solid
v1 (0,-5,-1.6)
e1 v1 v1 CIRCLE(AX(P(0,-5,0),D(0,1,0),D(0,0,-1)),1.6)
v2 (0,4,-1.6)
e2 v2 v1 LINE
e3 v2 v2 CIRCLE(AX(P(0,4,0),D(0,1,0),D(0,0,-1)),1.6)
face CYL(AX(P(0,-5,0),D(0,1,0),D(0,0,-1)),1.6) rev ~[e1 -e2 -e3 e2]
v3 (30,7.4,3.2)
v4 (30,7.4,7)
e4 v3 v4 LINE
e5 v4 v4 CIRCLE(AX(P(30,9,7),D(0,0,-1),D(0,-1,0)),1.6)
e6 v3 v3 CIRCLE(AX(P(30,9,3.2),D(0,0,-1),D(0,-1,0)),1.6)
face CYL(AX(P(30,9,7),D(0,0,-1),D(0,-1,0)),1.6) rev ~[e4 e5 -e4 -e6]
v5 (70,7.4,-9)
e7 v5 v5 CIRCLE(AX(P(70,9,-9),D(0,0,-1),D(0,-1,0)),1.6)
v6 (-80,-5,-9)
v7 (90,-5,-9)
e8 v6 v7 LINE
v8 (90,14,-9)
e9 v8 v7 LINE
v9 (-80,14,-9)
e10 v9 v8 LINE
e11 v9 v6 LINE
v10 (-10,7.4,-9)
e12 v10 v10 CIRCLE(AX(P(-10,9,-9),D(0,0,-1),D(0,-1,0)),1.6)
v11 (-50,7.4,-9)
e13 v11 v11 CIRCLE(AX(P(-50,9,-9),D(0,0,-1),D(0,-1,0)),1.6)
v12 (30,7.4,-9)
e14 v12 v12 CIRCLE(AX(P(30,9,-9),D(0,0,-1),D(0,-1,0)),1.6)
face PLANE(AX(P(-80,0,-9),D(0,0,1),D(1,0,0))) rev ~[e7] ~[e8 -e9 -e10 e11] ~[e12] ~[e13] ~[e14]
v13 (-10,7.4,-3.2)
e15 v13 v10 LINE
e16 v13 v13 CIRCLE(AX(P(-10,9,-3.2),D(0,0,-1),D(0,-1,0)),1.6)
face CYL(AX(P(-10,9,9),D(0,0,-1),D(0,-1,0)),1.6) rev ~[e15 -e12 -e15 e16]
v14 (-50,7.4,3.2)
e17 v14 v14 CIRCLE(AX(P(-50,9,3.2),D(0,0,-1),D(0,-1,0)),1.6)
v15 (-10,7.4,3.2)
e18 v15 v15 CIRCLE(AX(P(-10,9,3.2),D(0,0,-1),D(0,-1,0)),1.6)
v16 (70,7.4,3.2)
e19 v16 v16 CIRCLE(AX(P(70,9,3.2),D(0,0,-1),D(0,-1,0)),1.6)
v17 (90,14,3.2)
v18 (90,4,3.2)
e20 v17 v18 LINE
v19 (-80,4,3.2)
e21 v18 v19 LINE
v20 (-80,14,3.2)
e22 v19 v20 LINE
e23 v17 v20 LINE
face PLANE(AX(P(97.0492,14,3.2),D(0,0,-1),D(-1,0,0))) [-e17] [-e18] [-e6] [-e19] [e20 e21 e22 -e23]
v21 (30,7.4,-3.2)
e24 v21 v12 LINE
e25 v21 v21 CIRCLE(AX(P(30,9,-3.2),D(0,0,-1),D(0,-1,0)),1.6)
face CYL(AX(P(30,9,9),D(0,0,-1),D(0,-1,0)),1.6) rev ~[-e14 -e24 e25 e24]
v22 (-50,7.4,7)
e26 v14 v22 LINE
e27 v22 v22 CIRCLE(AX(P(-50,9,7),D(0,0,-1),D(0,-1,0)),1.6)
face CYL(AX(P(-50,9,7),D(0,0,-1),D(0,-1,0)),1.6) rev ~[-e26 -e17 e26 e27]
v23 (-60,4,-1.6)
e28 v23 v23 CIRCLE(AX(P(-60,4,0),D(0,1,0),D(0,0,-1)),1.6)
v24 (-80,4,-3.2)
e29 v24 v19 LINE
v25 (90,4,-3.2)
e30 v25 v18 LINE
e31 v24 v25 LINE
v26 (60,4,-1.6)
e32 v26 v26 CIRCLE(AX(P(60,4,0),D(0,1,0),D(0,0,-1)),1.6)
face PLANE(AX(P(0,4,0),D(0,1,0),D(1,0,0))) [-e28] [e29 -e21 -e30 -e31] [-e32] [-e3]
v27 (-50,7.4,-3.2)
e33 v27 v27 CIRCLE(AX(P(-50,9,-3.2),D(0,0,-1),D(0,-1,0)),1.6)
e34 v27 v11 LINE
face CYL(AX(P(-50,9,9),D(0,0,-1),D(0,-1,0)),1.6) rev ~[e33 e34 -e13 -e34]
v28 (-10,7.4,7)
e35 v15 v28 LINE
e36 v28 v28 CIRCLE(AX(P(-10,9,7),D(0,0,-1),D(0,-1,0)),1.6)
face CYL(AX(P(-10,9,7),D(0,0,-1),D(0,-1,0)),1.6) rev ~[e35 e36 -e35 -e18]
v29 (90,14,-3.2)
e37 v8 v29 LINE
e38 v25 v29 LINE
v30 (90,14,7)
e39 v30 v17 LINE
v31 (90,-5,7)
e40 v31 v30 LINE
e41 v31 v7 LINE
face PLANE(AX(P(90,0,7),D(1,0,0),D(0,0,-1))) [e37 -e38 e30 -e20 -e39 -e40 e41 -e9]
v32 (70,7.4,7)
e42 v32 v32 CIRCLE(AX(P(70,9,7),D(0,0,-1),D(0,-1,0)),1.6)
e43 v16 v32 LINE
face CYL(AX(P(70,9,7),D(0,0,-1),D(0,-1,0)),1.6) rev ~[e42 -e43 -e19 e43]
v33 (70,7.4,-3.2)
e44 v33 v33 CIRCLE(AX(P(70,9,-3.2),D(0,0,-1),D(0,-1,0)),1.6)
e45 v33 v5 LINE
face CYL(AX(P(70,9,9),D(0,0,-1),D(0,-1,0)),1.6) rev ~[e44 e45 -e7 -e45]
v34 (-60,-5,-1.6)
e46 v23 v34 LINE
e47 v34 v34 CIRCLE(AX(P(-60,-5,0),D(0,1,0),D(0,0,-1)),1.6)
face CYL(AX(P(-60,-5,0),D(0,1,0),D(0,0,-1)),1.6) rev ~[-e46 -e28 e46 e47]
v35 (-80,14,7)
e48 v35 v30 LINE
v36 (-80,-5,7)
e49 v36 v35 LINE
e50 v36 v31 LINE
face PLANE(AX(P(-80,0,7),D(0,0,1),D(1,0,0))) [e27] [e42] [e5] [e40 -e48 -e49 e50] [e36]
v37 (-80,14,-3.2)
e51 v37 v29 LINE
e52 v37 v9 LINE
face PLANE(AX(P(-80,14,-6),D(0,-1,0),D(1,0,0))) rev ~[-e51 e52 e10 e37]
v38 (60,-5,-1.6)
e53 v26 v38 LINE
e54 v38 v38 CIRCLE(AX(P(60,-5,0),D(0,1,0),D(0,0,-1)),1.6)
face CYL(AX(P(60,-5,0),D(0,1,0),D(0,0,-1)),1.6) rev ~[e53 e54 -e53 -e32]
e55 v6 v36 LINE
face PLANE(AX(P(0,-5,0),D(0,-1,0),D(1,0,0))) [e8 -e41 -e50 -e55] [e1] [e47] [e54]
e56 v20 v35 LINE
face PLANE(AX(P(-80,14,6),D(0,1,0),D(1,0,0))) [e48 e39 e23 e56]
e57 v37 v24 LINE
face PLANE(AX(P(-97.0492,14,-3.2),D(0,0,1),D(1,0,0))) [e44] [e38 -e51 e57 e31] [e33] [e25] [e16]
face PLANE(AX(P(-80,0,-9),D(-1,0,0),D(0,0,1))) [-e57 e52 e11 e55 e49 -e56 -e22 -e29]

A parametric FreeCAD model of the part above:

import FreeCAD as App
import Part
import Sketcher

doc = App.newDocument("Part")
params = doc.addObject("Spreadsheet::Sheet", "Params")
for row, (alias, value) in enumerate([
    ("sketch1_width", "180 mm"),
    ("sketch1_height", "6 mm"),
    ("pad1_length", "17 mm"),
    ("sketch2_width", "170 mm"),
    ("sketch2_height", "6 mm"),
    ("sketch2_height2", "3 mm"),
    ("pad2_length", "14 mm"),
    ("sketch3_width", "180 mm"),
    ("sketch3_height", "6 mm"),
    ("pocket1_length", "13 mm"),
    ("sketch4_width", "10 mm"),
    ("sketch4_height", "6 mm"),
    ("pocket2_length", "13 mm"),
    ("sketch5_height", "6.4 mm"),
    ("pocket3_length", "10 mm"),
    ("sketch6_diameter", "3.2 mm"),
    ("hole_diameter", "3.2 mm"),
    ("sketch7_diameter", "3.2 mm"),
    ("hole2_diameter", "3.2 mm"),
    ("sketch8_width", "170 mm"),
    ("sketch8_height", "14 mm"),
    ("pad3_length", "3 mm"),
    ("sketch9_diameter", "3.2 mm"),
    ("hole3_diameter", "3.2 mm"),
    ("sketch10_width", "170 mm"),
    ("sketch10_height", "3 mm"),
    ("pocket4_length", "40 mm"),
    ("sketch11_width", "170 mm"),
    ("sketch11_height", "14 mm"),
    ("pad4_length", "1 mm"),
    ("sketch12_diameter", "3.2 mm"),
    ("hole4_diameter", "3.2 mm"),
    ("hole4_depth", "10 mm"),
    ("sketch13_width", "170 mm"),
    ("sketch13_height", "16 mm"),
    ("pad5_length", "5 mm"),
    ("sketch14_diameter", "3.2 mm"),
    ("hole5_diameter", "3.2 mm"),
    ("hole5_depth", "10 mm"),
], start=1):
    params.set(f"A{row}", alias)
    params.set(f"B{row}", "=" + value)
    params.setAlias(f"B{row}", alias)

body = doc.addObject("PartDesign::Body", "Body")

sketch1 = doc.addObject("Sketcher::SketchObject", "Sketch")
body.addObject(sketch1)
sketch1.AttachmentSupport = (doc.XZ_Plane, [""])
sketch1.MapMode = "FlatFace"
sketch1.addGeometry([
    Part.LineSegment(App.Vector(90, 3, 0), App.Vector(90, -3, 0)),
    Part.LineSegment(App.Vector(90, -3, 0), App.Vector(-90, -3, 0)),
    Part.LineSegment(App.Vector(-90, -3, 0), App.Vector(-90, 3, 0)),
    Part.LineSegment(App.Vector(-90, 3, 0), App.Vector(90, 3, 0)),
], False)
sketch1.addConstraint([
    Sketcher.Constraint("Coincident", 0, 2, 1, 1),
    Sketcher.Constraint("Coincident", 1, 2, 2, 1),
    Sketcher.Constraint("Coincident", 2, 2, 3, 1),
    Sketcher.Constraint("Coincident", 3, 2, 0, 1),
    Sketcher.Constraint("Vertical", 0),
    Sketcher.Constraint("Horizontal", 1),
    Sketcher.Constraint("Vertical", 2),
    Sketcher.Constraint("Horizontal", 3),
    Sketcher.Constraint("Symmetric", 0, 2, 2, 2, -1, 1),
    Sketcher.Constraint("DistanceX", 1, 2, 1, 1, 180.0),
    Sketcher.Constraint("DistanceY", 0, 2, 0, 1, 6.0),
])
sketch1.setExpression("Constraints[9]", "Params.sketch1_width")
sketch1.setExpression("Constraints[10]", "Params.sketch1_height")
pad1 = doc.addObject("PartDesign::Pad", "Pad")
body.addObject(pad1)
pad1.Profile = sketch1
pad1.setExpression("Length", "Params.pad1_length")
pad1.Reversed = True

sketch2 = doc.addObject("Sketcher::SketchObject", "Sketch001")
body.addObject(sketch2)
sketch2.AttachmentSupport = (doc.XZ_Plane, [""])
sketch2.MapMode = "FlatFace"
sketch2.addGeometry([
    Part.LineSegment(App.Vector(-80, 9, 0), App.Vector(-80, 3, 0)),
    Part.LineSegment(App.Vector(-80, 3, 0), App.Vector(90, 3, 0)),
    Part.LineSegment(App.Vector(90, 3, 0), App.Vector(90, 9, 0)),
    Part.LineSegment(App.Vector(90, 9, 0), App.Vector(-80, 9, 0)),
    Part.LineSegment(App.Vector(90, -6, 0), App.Vector(90, -3, 0)),
    Part.LineSegment(App.Vector(90, -3, 0), App.Vector(-80, -3, 0)),
    Part.LineSegment(App.Vector(-80, -3, 0), App.Vector(-80, -6, 0)),
    Part.LineSegment(App.Vector(-80, -6, 0), App.Vector(90, -6, 0)),
], False)
sketch2.addConstraint([
    Sketcher.Constraint("Coincident", 0, 2, 1, 1),
    Sketcher.Constraint("Coincident", 1, 2, 2, 1),
    Sketcher.Constraint("Coincident", 2, 2, 3, 1),
    Sketcher.Constraint("Coincident", 3, 2, 0, 1),
    Sketcher.Constraint("Coincident", 4, 2, 5, 1),
    Sketcher.Constraint("Coincident", 5, 2, 6, 1),
    Sketcher.Constraint("Coincident", 6, 2, 7, 1),
    Sketcher.Constraint("Coincident", 7, 2, 4, 1),
    Sketcher.Constraint("Vertical", 0),
    Sketcher.Constraint("Horizontal", 1),
    Sketcher.Constraint("Vertical", 2),
    Sketcher.Constraint("Horizontal", 3),
    Sketcher.Constraint("Vertical", 4),
    Sketcher.Constraint("Horizontal", 5),
    Sketcher.Constraint("Vertical", 6),
    Sketcher.Constraint("Horizontal", 7),
    Sketcher.Constraint("Symmetric", 1, 2, 4, 2, -1),
    Sketcher.Constraint("Vertical", 3, 2, 5, 2),
    Sketcher.Constraint("DistanceX", 1, 1, 1, 2, 170.0),
    Sketcher.Constraint("DistanceY", 0, 2, 0, 1, 6.0),
    Sketcher.Constraint("DistanceY", 4, 1, 4, 2, 3.0),
    Sketcher.Constraint("DistanceY", -1, 1, 0, 2, 3.0),
    Sketcher.Constraint("DistanceX", 0, 2, -1, 1, 80.0),
])
sketch2.setExpression("Constraints[18]", "Params.sketch2_width")
sketch2.setExpression("Constraints[19]", "Params.sketch2_height")
sketch2.setExpression("Constraints[20]", "Params.sketch2_height2")
pad2 = doc.addObject("PartDesign::Pad", "Pad001")
body.addObject(pad2)
pad2.Profile = sketch2
pad2.setExpression("Length", "Params.pad2_length")
pad2.Reversed = True

sketch3 = doc.addObject("Sketcher::SketchObject", "Sketch002")
body.addObject(sketch3)
sketch3.AttachmentSupport = (doc.XZ_Plane, [""])
sketch3.MapMode = "FlatFace"
sketch3.AttachmentOffset = App.Placement(App.Vector(0, 0, -17), App.Rotation())
sketch3.addGeometry([
    Part.LineSegment(App.Vector(90, -3, 0), App.Vector(-90, -3, 0)),
    Part.LineSegment(App.Vector(-90, -3, 0), App.Vector(-90, 3, 0)),
    Part.LineSegment(App.Vector(-90, 3, 0), App.Vector(90, 3, 0)),
    Part.LineSegment(App.Vector(90, 3, 0), App.Vector(90, -3, 0)),
], False)
sketch3.addConstraint([
    Sketcher.Constraint("Coincident", 0, 2, 1, 1),
    Sketcher.Constraint("Coincident", 1, 2, 2, 1),
    Sketcher.Constraint("Coincident", 2, 2, 3, 1),
    Sketcher.Constraint("Coincident", 3, 2, 0, 1),
    Sketcher.Constraint("Horizontal", 0),
    Sketcher.Constraint("Vertical", 1),
    Sketcher.Constraint("Horizontal", 2),
    Sketcher.Constraint("Vertical", 3),
    Sketcher.Constraint("Symmetric", 0, 2, 2, 2, -1, 1),
    Sketcher.Constraint("DistanceX", 0, 2, 0, 1, 180.0),
    Sketcher.Constraint("DistanceY", 1, 1, 1, 2, 6.0),
])
sketch3.setExpression("Constraints[9]", "Params.sketch3_width")
sketch3.setExpression("Constraints[10]", "Params.sketch3_height")
pocket1 = doc.addObject("PartDesign::Pocket", "Pocket")
body.addObject(pocket1)
pocket1.Profile = sketch3
pocket1.setExpression("Length", "Params.pocket1_length")
pocket1.Reversed = True

sketch4 = doc.addObject("Sketcher::SketchObject", "Sketch003")
body.addObject(sketch4)
sketch4.AttachmentSupport = (doc.XZ_Plane, [""])
sketch4.MapMode = "FlatFace"
sketch4.AttachmentOffset = App.Placement(App.Vector(0, 0, -4), App.Rotation())
sketch4.addGeometry([
    Part.LineSegment(App.Vector(-90, -3, 0), App.Vector(-90, 3, 0)),
    Part.LineSegment(App.Vector(-90, 3, 0), App.Vector(-80, 3, 0)),
    Part.LineSegment(App.Vector(-80, 3, 0), App.Vector(-80, -3, 0)),
    Part.LineSegment(App.Vector(-80, -3, 0), App.Vector(-90, -3, 0)),
], False)
sketch4.addConstraint([
    Sketcher.Constraint("Coincident", 0, 2, 1, 1),
    Sketcher.Constraint("Coincident", 1, 2, 2, 1),
    Sketcher.Constraint("Coincident", 2, 2, 3, 1),
    Sketcher.Constraint("Coincident", 3, 2, 0, 1),
    Sketcher.Constraint("Vertical", 0),
    Sketcher.Constraint("Horizontal", 1),
    Sketcher.Constraint("Vertical", 2),
    Sketcher.Constraint("Horizontal", 3),
    Sketcher.Constraint("DistanceX", 1, 1, 1, 2, 10.0),
    Sketcher.Constraint("DistanceY", 0, 1, 0, 2, 6.0),
    Sketcher.Constraint("DistanceX", 0, 2, -1, 1, 90.0),
    Sketcher.Constraint("DistanceY", -1, 1, 0, 2, 3.0),
])
sketch4.setExpression("Constraints[8]", "Params.sketch4_width")
sketch4.setExpression("Constraints[9]", "Params.sketch4_height")
pocket2 = doc.addObject("PartDesign::Pocket", "Pocket001")
body.addObject(pocket2)
pocket2.Profile = sketch4
pocket2.setExpression("Length", "Params.pocket2_length")
pocket2.Reversed = True

sketch5 = doc.addObject("Sketcher::SketchObject", "Sketch004")
body.addObject(sketch5)
sketch5.AttachmentSupport = (doc.XZ_Plane, [""])
sketch5.MapMode = "FlatFace"
sketch5.AttachmentOffset = App.Placement(App.Vector(0, 0, -14), App.Rotation())
sketch5.addGeometry([
    Part.LineSegment(App.Vector(-97, 3, 0), App.Vector(97, 3, 0)),
    Part.LineSegment(App.Vector(97, 3, 0), App.Vector(97, -3, 0)),
    Part.LineSegment(App.Vector(97, -3, 0), App.Vector(-97, -3, 0)),
    Part.LineSegment(App.Vector(-97, -3, 0), App.Vector(-97, 3, 0)),
], False)
sketch5.addConstraint([
    Sketcher.Constraint("Coincident", 0, 2, 1, 1),
    Sketcher.Constraint("Coincident", 1, 2, 2, 1),
    Sketcher.Constraint("Coincident", 2, 2, 3, 1),
    Sketcher.Constraint("Coincident", 3, 2, 0, 1),
    Sketcher.Constraint("Horizontal", 0),
    Sketcher.Constraint("Vertical", 1),
    Sketcher.Constraint("Horizontal", 2),
    Sketcher.Constraint("Vertical", 3),
    Sketcher.Constraint("Symmetric", 0, 2, 2, 2, -1, 1),
    Sketcher.Constraint("DistanceY", 1, 2, 1, 1, 6.4),
    Sketcher.Constraint("DistanceX", 0, 1, 0, 2, 194.0984),
])
sketch5.setExpression("Constraints[9]", "Params.sketch5_height")
pocket3 = doc.addObject("PartDesign::Pocket", "Pocket002")
body.addObject(pocket3)
pocket3.Profile = sketch5
pocket3.setExpression("Length", "Params.pocket3_length")
pocket3.Reversed = True

sketch6 = doc.addObject("Sketcher::SketchObject", "Sketch005")
body.addObject(sketch6)
sketch6.AttachmentSupport = (doc.XY_Plane, [""])
sketch6.MapMode = "FlatFace"
sketch6.AttachmentOffset = App.Placement(App.Vector(0, 0, 9), App.Rotation())
sketch6.addGeometry([
    Part.Circle(App.Vector(70, 9, 0), App.Vector(0, 0, 1), 1.6),
    Part.Circle(App.Vector(30, 9, 0), App.Vector(0, 0, 1), 1.6),
    Part.Circle(App.Vector(-10, 9, 0), App.Vector(0, 0, 1), 1.6),
    Part.Circle(App.Vector(-50, 9, 0), App.Vector(0, 0, 1), 1.6),
], False)
sketch6.addConstraint([
    Sketcher.Constraint("Equal", 0, 1),
    Sketcher.Constraint("Equal", 1, 2),
    Sketcher.Constraint("Equal", 2, 3),
    Sketcher.Constraint("Horizontal", 0, 3, 1, 3),
    Sketcher.Constraint("Horizontal", 1, 3, 2, 3),
    Sketcher.Constraint("Horizontal", 2, 3, 3, 3),
    Sketcher.Constraint("Diameter", 0, 3.2),
    Sketcher.Constraint("DistanceX", -1, 1, 0, 3, 70.0),
    Sketcher.Constraint("DistanceY", -1, 1, 0, 3, 9.0),
    Sketcher.Constraint("DistanceX", -1, 1, 1, 3, 30.0),
    Sketcher.Constraint("DistanceX", 2, 3, -1, 1, 10.0),
    Sketcher.Constraint("DistanceX", 3, 3, -1, 1, 50.0),
])
sketch6.setExpression("Constraints[6]", "Params.sketch6_diameter")
doc.recompute()
hole = doc.addObject("PartDesign::Hole", "Hole")
body.addObject(hole)
hole.Profile = sketch6
hole.ThreadType = "None"
hole.setExpression("Diameter", "Params.hole_diameter")
hole.DepthType = "ThroughAll"

sketch7 = doc.addObject("Sketcher::SketchObject", "Sketch006")
body.addObject(sketch7)
sketch7.AttachmentSupport = (doc.XZ_Plane, [""])
sketch7.MapMode = "FlatFace"
sketch7.addGeometry([
    Part.Circle(App.Vector(60, 0, 0), App.Vector(0, 0, 1), 1.6),
    Part.Circle(App.Vector(0, 0, 0), App.Vector(0, 0, 1), 1.6),
    Part.Circle(App.Vector(-60, 0, 0), App.Vector(0, 0, 1), 1.6),
], False)
sketch7.addConstraint([
    Sketcher.Constraint("Coincident", 1, 3, -1, 1),
    Sketcher.Constraint("Equal", 0, 1),
    Sketcher.Constraint("Equal", 1, 2),
    Sketcher.Constraint("Symmetric", 0, 3, 2, 3, -1, 1),
    Sketcher.Constraint("PointOnObject", 0, 3, -1),
    Sketcher.Constraint("Diameter", 0, 3.2),
    Sketcher.Constraint("DistanceX", -1, 1, 0, 3, 60.0),
])
sketch7.setExpression("Constraints[5]", "Params.sketch7_diameter")
doc.recompute()
hole2 = doc.addObject("PartDesign::Hole", "Hole001")
body.addObject(hole2)
hole2.Profile = sketch7
hole2.ThreadType = "None"
hole2.setExpression("Diameter", "Params.hole2_diameter")
hole2.DepthType = "ThroughAll"

sketch8 = doc.addObject("Sketcher::SketchObject", "Sketch007")
body.addObject(sketch8)
sketch8.AttachmentSupport = (doc.XY_Plane, [""])
sketch8.MapMode = "FlatFace"
sketch8.AttachmentOffset = App.Placement(App.Vector(0, 0, -6), App.Rotation())
sketch8.addGeometry([
    Part.LineSegment(App.Vector(90, 0, 0), App.Vector(-80, 0, 0)),
    Part.LineSegment(App.Vector(-80, 0, 0), App.Vector(-80, 14, 0)),
    Part.LineSegment(App.Vector(-80, 14, 0), App.Vector(90, 14, 0)),
    Part.LineSegment(App.Vector(90, 14, 0), App.Vector(90, 0, 0)),
], False)
sketch8.addConstraint([
    Sketcher.Constraint("Coincident", 0, 2, 1, 1),
    Sketcher.Constraint("Coincident", 1, 2, 2, 1),
    Sketcher.Constraint("Coincident", 2, 2, 3, 1),
    Sketcher.Constraint("Coincident", 3, 2, 0, 1),
    Sketcher.Constraint("Horizontal", 0),
    Sketcher.Constraint("Vertical", 1),
    Sketcher.Constraint("Horizontal", 2),
    Sketcher.Constraint("Vertical", 3),
    Sketcher.Constraint("PointOnObject", 0, 2, -1),
    Sketcher.Constraint("DistanceX", 0, 2, 0, 1, 170.0),
    Sketcher.Constraint("DistanceY", 1, 1, 1, 2, 14.0),
    Sketcher.Constraint("DistanceX", 0, 2, -1, 1, 80.0),
])
sketch8.setExpression("Constraints[9]", "Params.sketch8_width")
sketch8.setExpression("Constraints[10]", "Params.sketch8_height")
pad3 = doc.addObject("PartDesign::Pad", "Pad002")
body.addObject(pad3)
pad3.Profile = sketch8
pad3.setExpression("Length", "Params.pad3_length")
pad3.Reversed = True

sketch9 = doc.addObject("Sketcher::SketchObject", "Sketch008")
body.addObject(sketch9)
sketch9.AttachmentSupport = (doc.XY_Plane, [""])
sketch9.MapMode = "FlatFace"
sketch9.AttachmentOffset = App.Placement(App.Vector(0, 0, 9), App.Rotation())
sketch9.addGeometry([
    Part.Circle(App.Vector(70, 9, 0), App.Vector(0, 0, 1), 1.6),
    Part.Circle(App.Vector(30, 9, 0), App.Vector(0, 0, 1), 1.6),
    Part.Circle(App.Vector(-10, 9, 0), App.Vector(0, 0, 1), 1.6),
    Part.Circle(App.Vector(-50, 9, 0), App.Vector(0, 0, 1), 1.6),
], False)
sketch9.addConstraint([
    Sketcher.Constraint("Equal", 0, 1),
    Sketcher.Constraint("Equal", 1, 2),
    Sketcher.Constraint("Equal", 2, 3),
    Sketcher.Constraint("Horizontal", 0, 3, 1, 3),
    Sketcher.Constraint("Horizontal", 1, 3, 2, 3),
    Sketcher.Constraint("Horizontal", 2, 3, 3, 3),
    Sketcher.Constraint("Diameter", 0, 3.2),
    Sketcher.Constraint("DistanceX", -1, 1, 0, 3, 70.0),
    Sketcher.Constraint("DistanceY", -1, 1, 0, 3, 9.0),
    Sketcher.Constraint("DistanceX", -1, 1, 1, 3, 30.0),
    Sketcher.Constraint("DistanceX", 2, 3, -1, 1, 10.0),
    Sketcher.Constraint("DistanceX", 3, 3, -1, 1, 50.0),
])
sketch9.setExpression("Constraints[6]", "Params.sketch9_diameter")
doc.recompute()
hole3 = doc.addObject("PartDesign::Hole", "Hole002")
body.addObject(hole3)
hole3.Profile = sketch9
hole3.ThreadType = "None"
hole3.setExpression("Diameter", "Params.hole3_diameter")
hole3.DepthType = "ThroughAll"

sketch10 = doc.addObject("Sketcher::SketchObject", "Sketch009")
body.addObject(sketch10)
sketch10.AttachmentSupport = (doc.XZ_Plane, [""])
sketch10.MapMode = "FlatFace"
sketch10.AttachmentOffset = App.Placement(App.Vector(0, 0, -14), App.Rotation())
sketch10.addGeometry([
    Part.LineSegment(App.Vector(-80, 6, 0), App.Vector(-80, 9, 0)),
    Part.LineSegment(App.Vector(-80, 9, 0), App.Vector(90, 9, 0)),
    Part.LineSegment(App.Vector(90, 9, 0), App.Vector(90, 6, 0)),
    Part.LineSegment(App.Vector(90, 6, 0), App.Vector(-80, 6, 0)),
], False)
sketch10.addConstraint([
    Sketcher.Constraint("Coincident", 0, 2, 1, 1),
    Sketcher.Constraint("Coincident", 1, 2, 2, 1),
    Sketcher.Constraint("Coincident", 2, 2, 3, 1),
    Sketcher.Constraint("Coincident", 3, 2, 0, 1),
    Sketcher.Constraint("Vertical", 0),
    Sketcher.Constraint("Horizontal", 1),
    Sketcher.Constraint("Vertical", 2),
    Sketcher.Constraint("Horizontal", 3),
    Sketcher.Constraint("DistanceX", 1, 1, 1, 2, 170.0),
    Sketcher.Constraint("DistanceY", 0, 1, 0, 2, 3.0),
    Sketcher.Constraint("DistanceX", 0, 2, -1, 1, 80.0),
    Sketcher.Constraint("DistanceY", -1, 1, 0, 2, 9.0),
])
sketch10.setExpression("Constraints[8]", "Params.sketch10_width")
sketch10.setExpression("Constraints[9]", "Params.sketch10_height")
pocket4 = doc.addObject("PartDesign::Pocket", "Pocket003")
body.addObject(pocket4)
pocket4.Profile = sketch10
pocket4.setExpression("Length", "Params.pocket4_length")
pocket4.Reversed = True

sketch11 = doc.addObject("Sketcher::SketchObject", "Sketch010")
body.addObject(sketch11)
sketch11.AttachmentSupport = (doc.XY_Plane, [""])
sketch11.MapMode = "FlatFace"
sketch11.AttachmentOffset = App.Placement(App.Vector(0, 0, 6), App.Rotation())
sketch11.addGeometry([
    Part.LineSegment(App.Vector(90, 14, 0), App.Vector(-80, 14, 0)),
    Part.LineSegment(App.Vector(-80, 14, 0), App.Vector(-80, 0, 0)),
    Part.LineSegment(App.Vector(-80, 0, 0), App.Vector(90, 0, 0)),
    Part.LineSegment(App.Vector(90, 0, 0), App.Vector(90, 14, 0)),
], False)
sketch11.addConstraint([
    Sketcher.Constraint("Coincident", 0, 2, 1, 1),
    Sketcher.Constraint("Coincident", 1, 2, 2, 1),
    Sketcher.Constraint("Coincident", 2, 2, 3, 1),
    Sketcher.Constraint("Coincident", 3, 2, 0, 1),
    Sketcher.Constraint("Horizontal", 0),
    Sketcher.Constraint("Vertical", 1),
    Sketcher.Constraint("Horizontal", 2),
    Sketcher.Constraint("Vertical", 3),
    Sketcher.Constraint("PointOnObject", 1, 2, -1),
    Sketcher.Constraint("DistanceX", 0, 2, 0, 1, 170.0),
    Sketcher.Constraint("DistanceY", 1, 2, 1, 1, 14.0),
    Sketcher.Constraint("DistanceX", 0, 2, -1, 1, 80.0),
])
sketch11.setExpression("Constraints[9]", "Params.sketch11_width")
sketch11.setExpression("Constraints[10]", "Params.sketch11_height")
pad4 = doc.addObject("PartDesign::Pad", "Pad003")
body.addObject(pad4)
pad4.Profile = sketch11
pad4.setExpression("Length", "Params.pad4_length")

sketch12 = doc.addObject("Sketcher::SketchObject", "Sketch011")
body.addObject(sketch12)
sketch12.AttachmentSupport = (doc.XY_Plane, [""])
sketch12.MapMode = "FlatFace"
sketch12.AttachmentOffset = App.Placement(App.Vector(0, 0, 7), App.Rotation())
sketch12.addGeometry([
    Part.Circle(App.Vector(-50, 9, 0), App.Vector(0, 0, 1), 1.6),
    Part.Circle(App.Vector(-10, 9, 0), App.Vector(0, 0, 1), 1.6),
    Part.Circle(App.Vector(30, 9, 0), App.Vector(0, 0, 1), 1.6),
    Part.Circle(App.Vector(70, 9, 0), App.Vector(0, 0, 1), 1.6),
], False)
sketch12.addConstraint([
    Sketcher.Constraint("Equal", 0, 1),
    Sketcher.Constraint("Equal", 1, 2),
    Sketcher.Constraint("Equal", 2, 3),
    Sketcher.Constraint("Horizontal", 0, 3, 1, 3),
    Sketcher.Constraint("Horizontal", 1, 3, 2, 3),
    Sketcher.Constraint("Horizontal", 2, 3, 3, 3),
    Sketcher.Constraint("Diameter", 0, 3.2),
    Sketcher.Constraint("DistanceX", 0, 3, -1, 1, 50.0),
    Sketcher.Constraint("DistanceY", -1, 1, 0, 3, 9.0),
    Sketcher.Constraint("DistanceX", 1, 3, -1, 1, 10.0),
    Sketcher.Constraint("DistanceX", -1, 1, 2, 3, 30.0),
    Sketcher.Constraint("DistanceX", -1, 1, 3, 3, 70.0),
])
sketch12.setExpression("Constraints[6]", "Params.sketch12_diameter")
doc.recompute()
hole4 = doc.addObject("PartDesign::Hole", "Hole003")
body.addObject(hole4)
hole4.Profile = sketch12
hole4.ThreadType = "None"
hole4.setExpression("Diameter", "Params.hole4_diameter")
hole4.DepthType = "Dimension"
hole4.setExpression("Depth", "Params.hole4_depth")
hole4.DrillPoint = "Flat"

sketch13 = doc.addObject("Sketcher::SketchObject", "Sketch012")
body.addObject(sketch13)
sketch13.AttachmentSupport = (doc.XZ_Plane, [""])
sketch13.MapMode = "FlatFace"
sketch13.addGeometry([
    Part.LineSegment(App.Vector(-80, 7, 0), App.Vector(-80, -9, 0)),
    Part.LineSegment(App.Vector(-80, -9, 0), App.Vector(90, -9, 0)),
    Part.LineSegment(App.Vector(90, -9, 0), App.Vector(90, 7, 0)),
    Part.LineSegment(App.Vector(90, 7, 0), App.Vector(-80, 7, 0)),
], False)
sketch13.addConstraint([
    Sketcher.Constraint("Coincident", 0, 2, 1, 1),
    Sketcher.Constraint("Coincident", 1, 2, 2, 1),
    Sketcher.Constraint("Coincident", 2, 2, 3, 1),
    Sketcher.Constraint("Coincident", 3, 2, 0, 1),
    Sketcher.Constraint("Vertical", 0),
    Sketcher.Constraint("Horizontal", 1),
    Sketcher.Constraint("Vertical", 2),
    Sketcher.Constraint("Horizontal", 3),
    Sketcher.Constraint("DistanceX", 1, 1, 1, 2, 170.0),
    Sketcher.Constraint("DistanceY", 0, 2, 0, 1, 16.0),
    Sketcher.Constraint("DistanceX", 0, 2, -1, 1, 80.0),
    Sketcher.Constraint("DistanceY", 0, 2, -1, 1, 9.0),
])
sketch13.setExpression("Constraints[8]", "Params.sketch13_width")
sketch13.setExpression("Constraints[9]", "Params.sketch13_height")
pad5 = doc.addObject("PartDesign::Pad", "Pad004")
body.addObject(pad5)
pad5.Profile = sketch13
pad5.setExpression("Length", "Params.pad5_length")

sketch14 = doc.addObject("Sketcher::SketchObject", "Sketch013")
body.addObject(sketch14)
sketch14.AttachmentSupport = (doc.XZ_Plane, [""])
sketch14.MapMode = "FlatFace"
sketch14.AttachmentOffset = App.Placement(App.Vector(0, 0, 5), App.Rotation())
sketch14.addGeometry([
    Part.Circle(App.Vector(60, 0, 0), App.Vector(0, 0, 1), 1.6),
    Part.Circle(App.Vector(0, 0, 0), App.Vector(0, 0, 1), 1.6),
    Part.Circle(App.Vector(-60, 0, 0), App.Vector(0, 0, 1), 1.6),
], False)
sketch14.addConstraint([
    Sketcher.Constraint("Coincident", 1, 3, -1, 1),
    Sketcher.Constraint("Equal", 0, 1),
    Sketcher.Constraint("Equal", 1, 2),
    Sketcher.Constraint("Symmetric", 0, 3, 2, 3, -1, 1),
    Sketcher.Constraint("PointOnObject", 0, 3, -1),
    Sketcher.Constraint("Diameter", 0, 3.2),
    Sketcher.Constraint("DistanceX", -1, 1, 0, 3, 60.0),
])
sketch14.setExpression("Constraints[5]", "Params.sketch14_diameter")
doc.recompute()
hole5 = doc.addObject("PartDesign::Hole", "Hole004")
body.addObject(hole5)
hole5.Profile = sketch14
hole5.ThreadType = "None"
hole5.setExpression("Diameter", "Params.hole5_diameter")
hole5.DepthType = "Dimension"
hole5.setExpression("Depth", "Params.hole5_depth")
hole5.DrillPoint = "Flat"

doc.recompute()
